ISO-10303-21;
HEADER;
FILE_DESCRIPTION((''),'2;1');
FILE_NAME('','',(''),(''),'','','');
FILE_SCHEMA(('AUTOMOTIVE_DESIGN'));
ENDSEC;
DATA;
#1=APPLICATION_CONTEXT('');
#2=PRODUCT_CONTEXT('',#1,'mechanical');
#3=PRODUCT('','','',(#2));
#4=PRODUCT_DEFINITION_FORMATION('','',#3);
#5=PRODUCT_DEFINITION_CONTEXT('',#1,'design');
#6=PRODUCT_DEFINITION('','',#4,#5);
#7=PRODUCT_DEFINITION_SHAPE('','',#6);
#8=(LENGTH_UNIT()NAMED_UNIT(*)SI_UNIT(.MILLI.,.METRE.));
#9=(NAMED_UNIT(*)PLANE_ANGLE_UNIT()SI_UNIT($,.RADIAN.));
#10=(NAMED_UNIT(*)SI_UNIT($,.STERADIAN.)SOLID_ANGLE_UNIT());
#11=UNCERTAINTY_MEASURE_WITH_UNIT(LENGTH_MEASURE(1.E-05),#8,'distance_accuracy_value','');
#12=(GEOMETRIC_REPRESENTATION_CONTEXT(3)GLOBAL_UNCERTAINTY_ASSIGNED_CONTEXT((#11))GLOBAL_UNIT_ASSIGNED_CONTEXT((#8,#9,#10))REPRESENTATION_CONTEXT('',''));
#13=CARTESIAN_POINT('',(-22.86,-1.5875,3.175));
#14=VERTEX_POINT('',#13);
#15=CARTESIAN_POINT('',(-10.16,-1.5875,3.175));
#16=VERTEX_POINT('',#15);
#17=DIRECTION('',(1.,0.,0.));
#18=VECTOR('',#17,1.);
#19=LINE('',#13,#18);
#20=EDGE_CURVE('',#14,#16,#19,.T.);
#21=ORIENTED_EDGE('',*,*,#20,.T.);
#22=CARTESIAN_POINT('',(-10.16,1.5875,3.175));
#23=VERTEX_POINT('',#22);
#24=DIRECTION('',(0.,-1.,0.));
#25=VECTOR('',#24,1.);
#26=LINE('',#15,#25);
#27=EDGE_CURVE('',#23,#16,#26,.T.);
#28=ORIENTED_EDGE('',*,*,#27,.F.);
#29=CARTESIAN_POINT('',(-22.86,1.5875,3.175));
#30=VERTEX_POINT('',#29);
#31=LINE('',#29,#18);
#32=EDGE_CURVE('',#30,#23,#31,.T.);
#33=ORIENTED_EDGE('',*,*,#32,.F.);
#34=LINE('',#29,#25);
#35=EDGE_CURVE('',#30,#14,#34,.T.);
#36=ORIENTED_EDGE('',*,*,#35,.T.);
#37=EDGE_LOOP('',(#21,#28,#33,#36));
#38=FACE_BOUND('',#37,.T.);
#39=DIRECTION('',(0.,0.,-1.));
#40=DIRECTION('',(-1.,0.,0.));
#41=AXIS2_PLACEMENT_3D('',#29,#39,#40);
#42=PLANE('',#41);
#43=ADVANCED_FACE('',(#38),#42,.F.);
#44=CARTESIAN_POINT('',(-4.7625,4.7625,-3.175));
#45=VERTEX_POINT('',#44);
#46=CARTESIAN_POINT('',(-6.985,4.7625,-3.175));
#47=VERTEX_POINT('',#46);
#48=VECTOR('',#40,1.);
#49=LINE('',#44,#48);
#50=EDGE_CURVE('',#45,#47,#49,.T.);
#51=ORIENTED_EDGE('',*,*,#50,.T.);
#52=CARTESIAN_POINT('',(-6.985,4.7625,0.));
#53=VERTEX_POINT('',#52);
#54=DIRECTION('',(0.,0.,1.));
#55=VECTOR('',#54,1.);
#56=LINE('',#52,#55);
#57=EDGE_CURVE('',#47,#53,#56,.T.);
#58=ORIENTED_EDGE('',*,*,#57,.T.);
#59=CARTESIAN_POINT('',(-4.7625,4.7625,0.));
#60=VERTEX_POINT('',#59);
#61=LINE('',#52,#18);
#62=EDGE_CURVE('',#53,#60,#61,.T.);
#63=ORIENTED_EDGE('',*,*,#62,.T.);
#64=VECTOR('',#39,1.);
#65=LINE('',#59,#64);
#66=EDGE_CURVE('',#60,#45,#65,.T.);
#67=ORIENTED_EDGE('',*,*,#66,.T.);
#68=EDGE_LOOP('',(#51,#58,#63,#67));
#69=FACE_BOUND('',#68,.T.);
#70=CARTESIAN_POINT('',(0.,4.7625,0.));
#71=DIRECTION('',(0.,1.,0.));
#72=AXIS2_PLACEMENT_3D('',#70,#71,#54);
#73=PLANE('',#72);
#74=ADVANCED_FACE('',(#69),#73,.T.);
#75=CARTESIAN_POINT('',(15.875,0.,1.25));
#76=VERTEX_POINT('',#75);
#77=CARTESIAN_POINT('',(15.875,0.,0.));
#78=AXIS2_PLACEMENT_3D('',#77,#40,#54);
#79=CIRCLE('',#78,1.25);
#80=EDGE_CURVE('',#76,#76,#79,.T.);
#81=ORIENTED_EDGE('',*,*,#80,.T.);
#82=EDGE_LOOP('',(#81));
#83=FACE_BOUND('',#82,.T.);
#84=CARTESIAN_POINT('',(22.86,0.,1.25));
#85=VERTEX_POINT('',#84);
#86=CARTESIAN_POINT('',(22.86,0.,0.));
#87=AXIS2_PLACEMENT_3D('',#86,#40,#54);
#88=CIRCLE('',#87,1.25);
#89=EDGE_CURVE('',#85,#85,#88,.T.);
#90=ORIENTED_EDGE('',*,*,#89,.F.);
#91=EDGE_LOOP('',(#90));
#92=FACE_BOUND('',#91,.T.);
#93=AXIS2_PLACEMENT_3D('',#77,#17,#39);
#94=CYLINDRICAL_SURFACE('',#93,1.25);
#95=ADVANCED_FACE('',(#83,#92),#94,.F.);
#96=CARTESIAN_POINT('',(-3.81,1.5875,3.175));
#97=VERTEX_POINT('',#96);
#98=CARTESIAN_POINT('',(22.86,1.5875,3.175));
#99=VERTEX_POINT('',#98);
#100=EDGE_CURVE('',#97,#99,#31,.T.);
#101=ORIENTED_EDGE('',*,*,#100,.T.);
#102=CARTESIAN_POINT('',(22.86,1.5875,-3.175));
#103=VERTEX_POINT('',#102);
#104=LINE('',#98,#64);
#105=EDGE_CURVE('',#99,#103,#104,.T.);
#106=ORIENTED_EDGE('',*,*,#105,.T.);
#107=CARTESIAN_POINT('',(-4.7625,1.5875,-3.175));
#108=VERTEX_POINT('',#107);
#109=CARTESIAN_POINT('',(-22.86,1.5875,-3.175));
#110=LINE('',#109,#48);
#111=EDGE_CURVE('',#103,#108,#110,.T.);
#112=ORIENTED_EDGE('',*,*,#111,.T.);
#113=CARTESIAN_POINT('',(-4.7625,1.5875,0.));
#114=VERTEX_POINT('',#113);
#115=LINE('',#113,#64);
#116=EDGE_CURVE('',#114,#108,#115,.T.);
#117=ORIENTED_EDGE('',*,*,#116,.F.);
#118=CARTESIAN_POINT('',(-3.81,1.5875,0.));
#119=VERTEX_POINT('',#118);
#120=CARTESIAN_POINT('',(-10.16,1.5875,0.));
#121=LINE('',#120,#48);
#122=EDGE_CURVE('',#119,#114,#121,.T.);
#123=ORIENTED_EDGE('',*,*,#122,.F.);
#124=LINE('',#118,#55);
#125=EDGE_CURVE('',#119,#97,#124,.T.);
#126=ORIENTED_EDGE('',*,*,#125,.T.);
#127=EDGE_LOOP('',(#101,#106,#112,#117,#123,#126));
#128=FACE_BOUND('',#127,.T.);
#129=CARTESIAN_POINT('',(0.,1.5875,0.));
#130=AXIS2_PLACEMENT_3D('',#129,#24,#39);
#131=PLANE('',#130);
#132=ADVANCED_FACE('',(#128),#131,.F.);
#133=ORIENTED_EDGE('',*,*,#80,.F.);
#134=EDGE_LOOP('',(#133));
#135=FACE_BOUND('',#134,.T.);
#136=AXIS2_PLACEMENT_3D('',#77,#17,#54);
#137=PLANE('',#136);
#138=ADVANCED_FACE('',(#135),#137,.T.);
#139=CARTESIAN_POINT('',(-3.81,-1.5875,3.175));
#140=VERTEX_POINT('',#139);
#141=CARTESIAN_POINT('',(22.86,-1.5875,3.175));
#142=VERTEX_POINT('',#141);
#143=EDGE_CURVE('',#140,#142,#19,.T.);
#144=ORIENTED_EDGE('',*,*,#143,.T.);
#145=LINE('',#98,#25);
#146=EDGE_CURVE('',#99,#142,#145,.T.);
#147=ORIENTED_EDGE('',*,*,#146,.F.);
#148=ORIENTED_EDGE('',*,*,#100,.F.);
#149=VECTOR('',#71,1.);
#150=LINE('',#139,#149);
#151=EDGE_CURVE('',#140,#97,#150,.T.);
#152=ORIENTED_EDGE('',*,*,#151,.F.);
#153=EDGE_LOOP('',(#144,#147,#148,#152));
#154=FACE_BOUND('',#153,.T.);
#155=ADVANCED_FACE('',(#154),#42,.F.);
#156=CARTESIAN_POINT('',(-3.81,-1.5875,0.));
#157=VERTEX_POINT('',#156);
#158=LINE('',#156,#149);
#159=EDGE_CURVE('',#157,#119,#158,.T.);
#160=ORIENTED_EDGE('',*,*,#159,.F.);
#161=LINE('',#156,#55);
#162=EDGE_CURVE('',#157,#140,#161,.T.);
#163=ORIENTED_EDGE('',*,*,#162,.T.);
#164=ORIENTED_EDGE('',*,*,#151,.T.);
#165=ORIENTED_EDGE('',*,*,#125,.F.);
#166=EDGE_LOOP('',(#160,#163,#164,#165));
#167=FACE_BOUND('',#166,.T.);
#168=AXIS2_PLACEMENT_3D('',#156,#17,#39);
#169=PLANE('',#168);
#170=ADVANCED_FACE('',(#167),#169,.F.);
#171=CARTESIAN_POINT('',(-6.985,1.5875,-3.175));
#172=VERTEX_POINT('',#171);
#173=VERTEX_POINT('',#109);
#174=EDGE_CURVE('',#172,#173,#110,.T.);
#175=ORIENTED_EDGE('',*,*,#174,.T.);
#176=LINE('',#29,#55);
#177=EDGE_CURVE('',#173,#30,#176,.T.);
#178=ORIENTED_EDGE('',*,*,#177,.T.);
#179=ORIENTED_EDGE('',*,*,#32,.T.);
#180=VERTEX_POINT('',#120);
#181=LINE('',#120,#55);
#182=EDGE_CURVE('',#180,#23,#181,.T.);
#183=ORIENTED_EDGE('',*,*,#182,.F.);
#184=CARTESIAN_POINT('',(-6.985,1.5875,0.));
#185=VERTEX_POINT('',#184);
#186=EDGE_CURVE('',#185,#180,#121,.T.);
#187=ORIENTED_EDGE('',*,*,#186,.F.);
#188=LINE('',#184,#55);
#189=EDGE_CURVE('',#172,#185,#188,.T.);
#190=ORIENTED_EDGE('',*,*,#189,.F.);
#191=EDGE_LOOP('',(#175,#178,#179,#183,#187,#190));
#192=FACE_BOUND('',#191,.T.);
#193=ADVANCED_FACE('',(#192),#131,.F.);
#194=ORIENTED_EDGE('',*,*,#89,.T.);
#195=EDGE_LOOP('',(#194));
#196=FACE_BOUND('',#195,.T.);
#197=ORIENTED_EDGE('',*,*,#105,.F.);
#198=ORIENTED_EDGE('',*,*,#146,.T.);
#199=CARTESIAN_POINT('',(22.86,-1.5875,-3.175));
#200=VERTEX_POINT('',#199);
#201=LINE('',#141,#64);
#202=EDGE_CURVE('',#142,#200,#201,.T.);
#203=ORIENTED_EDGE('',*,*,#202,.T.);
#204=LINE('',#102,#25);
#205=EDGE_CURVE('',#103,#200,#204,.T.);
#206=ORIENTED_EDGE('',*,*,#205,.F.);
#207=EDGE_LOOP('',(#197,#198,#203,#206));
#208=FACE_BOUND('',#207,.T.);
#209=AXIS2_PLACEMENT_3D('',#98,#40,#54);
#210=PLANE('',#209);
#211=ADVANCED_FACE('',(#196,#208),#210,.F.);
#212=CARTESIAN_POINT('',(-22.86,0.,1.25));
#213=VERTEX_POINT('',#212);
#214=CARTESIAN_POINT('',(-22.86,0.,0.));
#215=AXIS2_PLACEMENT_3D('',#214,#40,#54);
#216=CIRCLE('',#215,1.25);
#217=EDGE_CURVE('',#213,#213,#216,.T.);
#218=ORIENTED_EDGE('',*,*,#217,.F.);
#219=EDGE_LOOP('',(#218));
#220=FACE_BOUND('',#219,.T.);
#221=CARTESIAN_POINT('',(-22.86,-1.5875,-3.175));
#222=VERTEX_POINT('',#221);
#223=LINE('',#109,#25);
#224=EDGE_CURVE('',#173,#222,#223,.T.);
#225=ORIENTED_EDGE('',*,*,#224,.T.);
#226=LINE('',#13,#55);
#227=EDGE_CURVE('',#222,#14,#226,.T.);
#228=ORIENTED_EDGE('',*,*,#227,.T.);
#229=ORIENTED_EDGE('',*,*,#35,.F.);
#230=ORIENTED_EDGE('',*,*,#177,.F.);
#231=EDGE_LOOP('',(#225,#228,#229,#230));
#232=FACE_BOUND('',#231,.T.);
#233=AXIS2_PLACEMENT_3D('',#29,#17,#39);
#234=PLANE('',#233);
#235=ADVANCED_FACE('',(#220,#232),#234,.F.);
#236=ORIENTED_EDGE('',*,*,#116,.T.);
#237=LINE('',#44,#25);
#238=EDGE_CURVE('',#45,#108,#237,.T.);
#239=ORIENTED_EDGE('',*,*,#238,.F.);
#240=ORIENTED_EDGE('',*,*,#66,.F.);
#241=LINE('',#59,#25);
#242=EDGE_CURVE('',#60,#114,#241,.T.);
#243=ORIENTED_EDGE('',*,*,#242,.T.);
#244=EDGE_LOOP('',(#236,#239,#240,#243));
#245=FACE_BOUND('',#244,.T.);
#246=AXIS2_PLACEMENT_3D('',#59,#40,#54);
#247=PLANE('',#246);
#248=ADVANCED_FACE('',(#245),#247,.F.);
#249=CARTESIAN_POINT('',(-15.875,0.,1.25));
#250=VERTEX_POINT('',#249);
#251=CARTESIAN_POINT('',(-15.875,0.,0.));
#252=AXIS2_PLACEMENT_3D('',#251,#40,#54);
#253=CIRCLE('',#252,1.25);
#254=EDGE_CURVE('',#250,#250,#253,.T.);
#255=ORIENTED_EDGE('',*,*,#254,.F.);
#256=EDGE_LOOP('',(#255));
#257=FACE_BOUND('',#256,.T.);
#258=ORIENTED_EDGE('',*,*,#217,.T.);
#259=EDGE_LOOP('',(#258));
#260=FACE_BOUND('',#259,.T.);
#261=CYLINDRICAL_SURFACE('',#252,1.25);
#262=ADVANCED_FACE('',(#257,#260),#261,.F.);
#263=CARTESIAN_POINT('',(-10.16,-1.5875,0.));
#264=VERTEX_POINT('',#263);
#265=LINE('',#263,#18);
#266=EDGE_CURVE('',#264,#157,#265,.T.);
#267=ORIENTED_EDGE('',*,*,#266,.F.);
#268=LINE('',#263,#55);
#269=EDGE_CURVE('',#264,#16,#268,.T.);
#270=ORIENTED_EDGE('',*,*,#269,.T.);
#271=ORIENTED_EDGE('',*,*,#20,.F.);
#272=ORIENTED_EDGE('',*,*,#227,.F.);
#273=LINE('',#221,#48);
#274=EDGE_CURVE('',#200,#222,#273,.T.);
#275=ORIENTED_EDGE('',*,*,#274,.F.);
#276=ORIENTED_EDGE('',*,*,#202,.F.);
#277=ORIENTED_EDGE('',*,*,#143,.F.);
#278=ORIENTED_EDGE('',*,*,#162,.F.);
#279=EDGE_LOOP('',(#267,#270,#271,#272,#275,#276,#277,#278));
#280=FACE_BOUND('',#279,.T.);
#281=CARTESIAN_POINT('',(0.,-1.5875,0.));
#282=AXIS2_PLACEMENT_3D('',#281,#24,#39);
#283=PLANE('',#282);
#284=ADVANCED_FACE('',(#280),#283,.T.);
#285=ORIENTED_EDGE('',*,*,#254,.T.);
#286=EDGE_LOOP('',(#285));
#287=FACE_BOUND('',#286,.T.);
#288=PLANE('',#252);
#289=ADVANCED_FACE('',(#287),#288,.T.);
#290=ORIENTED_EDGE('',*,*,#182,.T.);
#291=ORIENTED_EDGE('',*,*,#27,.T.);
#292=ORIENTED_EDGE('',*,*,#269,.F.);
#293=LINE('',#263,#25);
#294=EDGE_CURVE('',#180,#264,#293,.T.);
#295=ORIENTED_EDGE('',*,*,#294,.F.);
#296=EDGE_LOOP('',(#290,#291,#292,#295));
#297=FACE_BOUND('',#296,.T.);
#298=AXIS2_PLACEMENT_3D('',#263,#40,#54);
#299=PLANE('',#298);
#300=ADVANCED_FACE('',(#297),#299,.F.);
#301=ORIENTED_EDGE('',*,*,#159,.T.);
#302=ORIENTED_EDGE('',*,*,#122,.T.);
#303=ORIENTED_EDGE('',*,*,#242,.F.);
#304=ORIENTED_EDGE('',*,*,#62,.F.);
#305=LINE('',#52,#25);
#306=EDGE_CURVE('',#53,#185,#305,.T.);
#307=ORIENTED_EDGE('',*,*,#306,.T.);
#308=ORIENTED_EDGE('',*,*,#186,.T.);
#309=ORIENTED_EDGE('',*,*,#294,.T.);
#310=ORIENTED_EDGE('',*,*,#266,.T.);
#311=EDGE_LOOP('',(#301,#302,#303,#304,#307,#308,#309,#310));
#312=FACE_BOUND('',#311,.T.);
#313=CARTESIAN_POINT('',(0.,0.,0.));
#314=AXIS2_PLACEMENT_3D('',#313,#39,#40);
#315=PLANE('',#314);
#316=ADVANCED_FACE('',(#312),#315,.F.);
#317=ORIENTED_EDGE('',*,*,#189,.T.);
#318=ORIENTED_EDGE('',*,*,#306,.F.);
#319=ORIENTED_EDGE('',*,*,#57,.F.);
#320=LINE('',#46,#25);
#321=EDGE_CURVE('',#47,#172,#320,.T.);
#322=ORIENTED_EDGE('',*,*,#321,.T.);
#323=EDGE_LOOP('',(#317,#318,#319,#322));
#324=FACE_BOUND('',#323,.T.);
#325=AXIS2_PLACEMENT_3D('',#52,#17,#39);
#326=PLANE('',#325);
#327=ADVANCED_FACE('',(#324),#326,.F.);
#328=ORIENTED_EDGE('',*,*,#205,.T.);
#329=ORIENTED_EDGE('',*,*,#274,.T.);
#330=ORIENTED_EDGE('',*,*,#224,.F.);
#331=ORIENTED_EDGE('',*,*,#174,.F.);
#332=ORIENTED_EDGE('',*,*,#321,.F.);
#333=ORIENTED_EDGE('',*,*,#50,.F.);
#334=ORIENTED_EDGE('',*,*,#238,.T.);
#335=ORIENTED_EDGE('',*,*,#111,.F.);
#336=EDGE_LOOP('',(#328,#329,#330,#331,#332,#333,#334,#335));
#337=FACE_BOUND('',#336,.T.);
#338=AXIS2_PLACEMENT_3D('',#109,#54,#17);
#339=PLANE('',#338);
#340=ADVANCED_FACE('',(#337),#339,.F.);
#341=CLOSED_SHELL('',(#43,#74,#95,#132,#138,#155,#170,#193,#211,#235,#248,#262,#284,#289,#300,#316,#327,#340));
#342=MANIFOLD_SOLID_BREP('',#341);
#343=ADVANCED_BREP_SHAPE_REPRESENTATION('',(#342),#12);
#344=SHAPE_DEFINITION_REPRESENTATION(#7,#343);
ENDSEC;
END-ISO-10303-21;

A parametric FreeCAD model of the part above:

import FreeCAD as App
import Part
import Sketcher

V = App.Vector
Q = App.Units.Quantity


def add_polygon(sketch, points):
    """Adds a closed chain of lines whose ends are joined by coincident constraints."""
    first, n = sketch.GeometryCount, len(points)
    for a, b in zip(points, points[1:] + points[:1]):
        sketch.addGeometry(Part.LineSegment(App.Vector(*a, 0), App.Vector(*b, 0)), False)
    for i in range(n):
        sketch.addConstraint(Sketcher.Constraint("Coincident", first + i, 2, first + (i + 1) % n, 1))

doc = App.newDocument("Part")
params = doc.addObject("Spreadsheet::Sheet", "Params")
for row, (alias, value) in enumerate([
    ("sketch1_width", "1.8 in"),
    ("sketch1_height", "0.25 in"),
    ("pad1_length", "0.125 in"),
    ("sketch2_width", "0.25 in"),
    ("sketch2_height", "0.125 in"),
    ("pocket1_length", "0.125 in"),
    ("sketch3_height", "0.125 in"),
    ("pad2_length", "0.125 in"),
    ("pocket2_length", "0.275 in"),
], start=1):
    params.set(f"A{row}", alias)
    params.set(f"B{row}", "=" + value)
    params.setAlias(f"B{row}", alias)

body = doc.addObject("PartDesign::Body", "Body")

sketch1 = doc.addObject("Sketcher::SketchObject", "Sketch")
body.addObject(sketch1)
sketch1.AttachmentSupport = (doc.XZ_Plane, [""])
sketch1.MapMode = "FlatFace"
add_polygon(sketch1, [(-22.86, -3.175), (-22.86, 3.175), (22.86, 3.175), (22.86, -3.175)])
sketch1.addConstraint([
    Sketcher.Constraint("Vertical", 0),
    Sketcher.Constraint("Horizontal", 1),
    Sketcher.Constraint("Vertical", 2),
    Sketcher.Constraint("Horizontal", 3),
    Sketcher.Constraint("Symmetric", 0, 2, 2, 2, -1, 1),
    Sketcher.Constraint("DistanceX", 1, 1, 1, 2, Q("1.8 in")),
    Sketcher.Constraint("DistanceY", 0, 1, 0, 2, Q("0.25 in")),
])
sketch1.setExpression("Constraints[9]", "Params.sketch1_width")
sketch1.setExpression("Constraints[10]", "Params.sketch1_height")
pad1 = doc.addObject("PartDesign::Pad", "Pad")
body.addObject(pad1)
pad1.Profile = sketch1
pad1.setExpression("Length", "Params.pad1_length")
pad1.Midplane = True

sketch2 = doc.addObject("Sketcher::SketchObject", "Sketch001")
body.addObject(sketch2)
sketch2.AttachmentSupport = (doc.XY_Plane, [""])
sketch2.MapMode = "FlatFace"
sketch2.AttachmentOffset = App.Placement(V(0, 0, 0.125 * 25.4), App.Rotation())
add_polygon(sketch2, [(-10.16, 1.5875), (-10.16, -1.5875), (-3.81, -1.5875), (-3.81, 1.5875)])
sketch2.addConstraint([
    Sketcher.Constraint("Vertical", 0),
    Sketcher.Constraint("Horizontal", 1),
    Sketcher.Constraint("Vertical", 2),
    Sketcher.Constraint("Horizontal", 3),
    Sketcher.Constraint("DistanceX", 1, 1, 1, 2, Q("0.25 in")),
    Sketcher.Constraint("DistanceX", 0, 2, -1, 1, Q("0.4 in")),
    Sketcher.Constraint("DistanceY", 0, 2, 0, 1, Q("0.125 in")),
    Sketcher.Constraint("DistanceY", 0, 2, -1, 1, Q("0.0625 in")),
])
sketch2.setExpression("Constraints[8]", "Params.sketch2_width")
sketch2.setExpression("Constraints[10]", "Params.sketch2_height")
pocket1 = doc.addObject("PartDesign::Pocket", "Pocket")
body.addObject(pocket1)
pocket1.Profile = sketch2
pocket1.setExpression("Length", "Params.pocket1_length")

sketch3 = doc.addObject("Sketcher::SketchObject", "Sketch002")
body.addObject(sketch3)
sketch3.AttachmentSupport = (doc.XZ_Plane, [""])
sketch3.MapMode = "FlatFace"
sketch3.AttachmentOffset = App.Placement(V(0, 0, -0.0625 * 25.4), App.Rotation())
add_polygon(sketch3, [(-6.985, -3.175), (-6.985, 0), (-4.7625, 0), (-4.7625, -3.175)])
sketch3.addConstraint([
    Sketcher.Constraint("Vertical", 0),
    Sketcher.Constraint("Horizontal", 1),
    Sketcher.Constraint("Vertical", 2),
    Sketcher.Constraint("Horizontal", 3),
    Sketcher.Constraint("PointOnObject", 0, 2, -1),
    Sketcher.Constraint("DistanceY", 0, 1, 0, 2, Q("0.125 in")),
    Sketcher.Constraint("DistanceX", 1, 1, 1, 2, Q("0.0875 in")),
    Sketcher.Constraint("DistanceX", 0, 2, -1, 1, Q("0.275 in")),
])
sketch3.setExpression("Constraints[9]", "Params.sketch3_height")
pad2 = doc.addObject("PartDesign::Pad", "Pad001")
body.addObject(pad2)
pad2.Profile = sketch3
pad2.setExpression("Length", "Params.pad2_length")
pad2.Reversed = True

sketch4 = doc.addObject("Sketcher::SketchObject", "Sketch003")
body.addObject(sketch4)
sketch4.AttachmentSupport = (doc.YZ_Plane, [""])
sketch4.MapMode = "FlatFace"
sketch4.AttachmentOffset = App.Placement(V(0, 0, -0.9 * 25.4), App.Rotation())
sketch4.addGeometry(Part.Circle(V(0, 0, 0), V(0, 0, 1), 1.25), False)
sketch4.addConstraint([
    Sketcher.Constraint("Coincident", 0, 3, -1, 1),
    Sketcher.Constraint("Diameter", 0, Q("2.5 mm")),
])
pocket2 = doc.addObject("PartDesign::Pocket", "Pocket001")
body.addObject(pocket2)
pocket2.Profile = sketch4
pocket2.setExpression("Length", "Params.pocket2_length")
pocket2.Reversed = True
doc.recompute()

mirrored = doc.addObject("PartDesign::Mirrored", "Mirrored")
body.addObject(mirrored)
mirrored.Originals = [pocket2]
mirrored.MirrorPlane = (doc.YZ_Plane, [""])
body.Tip = mirrored

doc.recompute()
